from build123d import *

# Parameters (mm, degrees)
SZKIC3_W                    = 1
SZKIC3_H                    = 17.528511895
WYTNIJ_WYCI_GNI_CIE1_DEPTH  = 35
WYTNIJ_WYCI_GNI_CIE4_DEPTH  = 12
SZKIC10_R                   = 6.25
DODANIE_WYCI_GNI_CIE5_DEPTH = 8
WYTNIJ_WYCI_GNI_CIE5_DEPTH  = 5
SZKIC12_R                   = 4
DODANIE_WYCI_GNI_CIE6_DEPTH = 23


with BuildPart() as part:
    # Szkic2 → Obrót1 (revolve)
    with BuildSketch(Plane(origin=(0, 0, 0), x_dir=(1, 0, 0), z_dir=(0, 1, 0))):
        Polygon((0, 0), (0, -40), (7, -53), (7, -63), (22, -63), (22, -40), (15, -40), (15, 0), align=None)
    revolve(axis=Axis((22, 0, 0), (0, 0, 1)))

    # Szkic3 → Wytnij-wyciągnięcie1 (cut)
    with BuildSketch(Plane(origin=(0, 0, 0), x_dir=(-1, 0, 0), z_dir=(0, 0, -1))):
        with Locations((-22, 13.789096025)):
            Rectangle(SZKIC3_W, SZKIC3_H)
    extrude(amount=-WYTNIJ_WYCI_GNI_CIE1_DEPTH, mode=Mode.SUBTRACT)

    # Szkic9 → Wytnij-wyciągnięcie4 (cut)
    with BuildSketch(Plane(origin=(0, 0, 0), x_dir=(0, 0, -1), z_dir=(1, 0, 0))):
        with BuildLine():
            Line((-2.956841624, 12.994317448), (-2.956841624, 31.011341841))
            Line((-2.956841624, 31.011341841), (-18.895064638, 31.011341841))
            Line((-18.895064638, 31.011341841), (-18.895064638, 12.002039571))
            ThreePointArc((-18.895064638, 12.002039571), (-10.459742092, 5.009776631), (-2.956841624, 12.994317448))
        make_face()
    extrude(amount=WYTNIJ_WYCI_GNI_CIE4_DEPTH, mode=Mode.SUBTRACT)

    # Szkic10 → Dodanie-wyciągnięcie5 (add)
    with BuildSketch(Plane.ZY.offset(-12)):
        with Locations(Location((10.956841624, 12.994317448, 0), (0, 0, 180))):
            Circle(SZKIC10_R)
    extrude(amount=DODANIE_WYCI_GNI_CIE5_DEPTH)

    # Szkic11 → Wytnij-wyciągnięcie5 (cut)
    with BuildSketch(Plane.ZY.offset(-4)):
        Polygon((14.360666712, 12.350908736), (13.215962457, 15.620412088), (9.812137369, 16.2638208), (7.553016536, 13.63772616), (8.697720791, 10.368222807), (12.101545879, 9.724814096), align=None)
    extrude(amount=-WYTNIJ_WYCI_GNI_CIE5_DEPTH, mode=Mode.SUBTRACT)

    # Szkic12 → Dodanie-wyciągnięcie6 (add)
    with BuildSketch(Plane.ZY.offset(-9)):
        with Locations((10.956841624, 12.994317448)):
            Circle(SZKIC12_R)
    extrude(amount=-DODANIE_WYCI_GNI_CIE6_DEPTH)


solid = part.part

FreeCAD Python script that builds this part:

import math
import FreeCAD as App
import Part
import Sketcher

doc = App.newDocument("Part")
body = doc.addObject("PartDesign::Body", "Body")

sketch1 = body.newObject("Sketcher::SketchObject", "Sketch")
sketch1.AttachmentSupport = (doc.getObject("XZ_Plane"), [""])
sketch1.MapMode = "FlatFace"
sketch1.addGeometry(Part.LineSegment(App.Vector(0, 0, 0), App.Vector(0, 40, 0)), False)
sketch1.addGeometry(Part.LineSegment(App.Vector(0, 40, 0), App.Vector(7, 53, 0)), False)
sketch1.addGeometry(Part.LineSegment(App.Vector(7, 53, 0), App.Vector(7, 63, 0)), False)
sketch1.addGeometry(Part.LineSegment(App.Vector(7, 63, 0), App.Vector(22, 63, 0)), False)
sketch1.addGeometry(Part.LineSegment(App.Vector(22, 63, 0), App.Vector(22, 40, 0)), False)
sketch1.addGeometry(Part.LineSegment(App.Vector(22, 40, 0), App.Vector(15, 40, 0)), False)
sketch1.addGeometry(Part.LineSegment(App.Vector(15, 40, 0), App.Vector(15, 0, 0)), False)
sketch1.addGeometry(Part.LineSegment(App.Vector(15, 0, 0), App.Vector(0, 0, 0)), False)
sketch1.addGeometry(Part.LineSegment(App.Vector(22, 0, 0), App.Vector(22, 63, 0)), True)
sketch1.addConstraint(Sketcher.Constraint("Coincident", 0, 2, 1, 1))
sketch1.addConstraint(Sketcher.Constraint("Coincident", 1, 2, 2, 1))
sketch1.addConstraint(Sketcher.Constraint("Coincident", 2, 2, 3, 1))
sketch1.addConstraint(Sketcher.Constraint("Coincident", 3, 2, 4, 1))
sketch1.addConstraint(Sketcher.Constraint("Coincident", 4, 2, 5, 1))
sketch1.addConstraint(Sketcher.Constraint("Coincident", 5, 2, 6, 1))
sketch1.addConstraint(Sketcher.Constraint("Coincident", 6, 2, 7, 1))
sketch1.addConstraint(Sketcher.Constraint("Coincident", 7, 2, 0, 1))
sketch1.addConstraint(Sketcher.Constraint("Vertical", 0))
sketch1.addConstraint(Sketcher.Constraint("Vertical", 2))
sketch1.addConstraint(Sketcher.Constraint("Horizontal", 3))
sketch1.addConstraint(Sketcher.Constraint("Vertical", 4))
sketch1.addConstraint(Sketcher.Constraint("Horizontal", 5))
sketch1.addConstraint(Sketcher.Constraint("Vertical", 6))
sketch1.addConstraint(Sketcher.Constraint("Horizontal", 7))
sketch1.addConstraint(Sketcher.Constraint("Vertical", 8))
sketch1.addConstraint(Sketcher.Constraint("Coincident", 7, 2, -1, 1))
sketch1.addConstraint(Sketcher.Constraint("Coincident", 8, 2, 3, 2))
sketch1.addConstraint(Sketcher.Constraint("PointOnObject", 8, 1, -1))
sketch1.addConstraint(Sketcher.Constraint("Horizontal", 0, 2, 4, 2))
sketch1.addConstraint(Sketcher.Constraint("Equal", 3, 7))
sketch1.addConstraint(Sketcher.Constraint("DistanceX", 3, 1, 3, 2, 15.0))
sketch1.addConstraint(Sketcher.Constraint("DistanceX", 5, 2, 5, 1, 7.0))
sketch1.addConstraint(Sketcher.Constraint("DistanceY", 0, 1, 0, 2, 40.0))
sketch1.addConstraint(Sketcher.Constraint("DistanceY", 2, 1, 2, 2, 10.0))
sketch1.addConstraint(Sketcher.Constraint("DistanceY", 4, 2, 4, 1, 23.0))
revolution = body.newObject("PartDesign::Revolution", "Revolution")
revolution.Profile = sketch1
revolution.ReferenceAxis = (sketch1, ["Axis0"])
revolution.Angle = 360

sketch2 = body.newObject("Sketcher::SketchObject", "Sketch001")
sketch2.AttachmentSupport = (doc.getObject("XY_Plane"), [""])
sketch2.MapMode = "FlatFace"
sketch2.addGeometry(Part.LineSegment(App.Vector(22.5, 22.6, 0), App.Vector(22.5, 5, 0)), False)
sketch2.addGeometry(Part.LineSegment(App.Vector(22.5, 5, 0), App.Vector(21.5, 5, 0)), False)
sketch2.addGeometry(Part.LineSegment(App.Vector(21.5, 5, 0), App.Vector(21.5, 22.6, 0)), False)
sketch2.addGeometry(Part.LineSegment(App.Vector(21.5, 22.6, 0), App.Vector(22.5, 22.6, 0)), False)
sketch2.addConstraint(Sketcher.Constraint("Coincident", 0, 2, 1, 1))
sketch2.addConstraint(Sketcher.Constraint("Coincident", 1, 2, 2, 1))
sketch2.addConstraint(Sketcher.Constraint("Coincident", 2, 2, 3, 1))
sketch2.addConstraint(Sketcher.Constraint("Coincident", 3, 2, 0, 1))
sketch2.addConstraint(Sketcher.Constraint("Vertical", 0))
sketch2.addConstraint(Sketcher.Constraint("Horizontal", 1))
sketch2.addConstraint(Sketcher.Constraint("Vertical", 2))
sketch2.addConstraint(Sketcher.Constraint("Horizontal", 3))
sketch2.addConstraint(Sketcher.Constraint("DistanceX", 1, 2, 1, 1, 1.0))
sketch2.addConstraint(Sketcher.Constraint("DistanceX", -1, 1, 0, 2, 22.5))
sketch2.addConstraint(Sketcher.Constraint("DistanceY", 0, 2, 0, 1, 17.528512))
sketch2.addConstraint(Sketcher.Constraint("DistanceY", -1, 1, 0, 2, 5.02484))
pocket1 = body.newObject("PartDesign::Pocket", "Pocket")
pocket1.Profile = sketch2
pocket1.Length = 35
pocket1.Reversed = True

sketch3 = body.newObject("Sketcher::SketchObject", "Sketch002")
sketch3.AttachmentSupport = (doc.getObject("YZ_Plane"), [""])
sketch3.MapMode = "FlatFace"
sketch3.addGeometry(Part.LineSegment(App.Vector(13, 3, 0), App.Vector(31, 3, 0)), False)
sketch3.addGeometry(Part.LineSegment(App.Vector(31, 3, 0), App.Vector(31, 19, 0)), False)
sketch3.addGeometry(Part.LineSegment(App.Vector(31, 19, 0), App.Vector(12, 19, 0)), False)
sketch3.addGeometry(Part.ArcOfCircle(Part.Circle(App.Vector(13, 11, 0), App.Vector(0, 0, 1), 8), math.radians(97), math.radians(270)), False)
sketch3.addConstraint(Sketcher.Constraint("Coincident", 0, 2, 1, 1))
sketch3.addConstraint(Sketcher.Constraint("Coincident", 1, 2, 2, 1))
sketch3.addConstraint(Sketcher.Constraint("Coincident", 2, 2, 3, 1))
sketch3.addConstraint(Sketcher.Constraint("Tangent", 3, 2, 0, 1))
sketch3.addConstraint(Sketcher.Constraint("Horizontal", 0))
sketch3.addConstraint(Sketcher.Constraint("Vertical", 1))
sketch3.addConstraint(Sketcher.Constraint("Horizontal", 2))
sketch3.addConstraint(Sketcher.Constraint("Radius", 3, 8.0))
sketch3.addConstraint(Sketcher.Constraint("DistanceX", 0, 1, 0, 2, 18.017024))
sketch3.addConstraint(Sketcher.Constraint("DistanceX", 2, 2, 2, 1, 19.009302))
sketch3.addConstraint(Sketcher.Constraint("DistanceY", -1, 1, 3, 3, 10.956842))
sketch3.addConstraint(Sketcher.Constraint("DistanceX", -1, 1, 0, 2, 31.011342))
pocket2 = body.newObject("PartDesign::Pocket", "Pocket001")
pocket2.Profile = sketch3
pocket2.Length = 12
pocket2.Reversed = True

sketch4 = body.newObject("Sketcher::SketchObject", "Sketch003")
sketch4.AttachmentSupport = (doc.getObject("YZ_Plane"), [""])
sketch4.MapMode = "FlatFace"
sketch4.AttachmentOffset = App.Placement(App.Vector(0, 0, 12), App.Rotation())
sketch4.addGeometry(Part.Circle(App.Vector(13, 11, 0), App.Vector(0, 0, 1), 6), False)
sketch4.addConstraint(Sketcher.Constraint("Diameter", 0, 12.5))
sketch4.addConstraint(Sketcher.Constraint("DistanceY", -1, 1, 0, 3, 10.956842))
sketch4.addConstraint(Sketcher.Constraint("DistanceX", -1, 1, 0, 3, 12.994317))
pad1 = body.newObject("PartDesign::Pad", "Pad")
pad1.Profile = sketch4
pad1.Length = 8
pad1.Reversed = True

sketch5 = body.newObject("Sketcher::SketchObject", "Sketch004")
sketch5.AttachmentSupport = (doc.getObject("YZ_Plane"), [""])
sketch5.MapMode = "FlatFace"
sketch5.AttachmentOffset = App.Placement(App.Vector(0, 0, 4), App.Rotation())
sketch5.addGeometry(Part.LineSegment(App.Vector(12.4, 14.4, 0), App.Vector(15.6, 13.2, 0)), False)
sketch5.addGeometry(Part.LineSegment(App.Vector(15.6, 13.2, 0), App.Vector(16.3, 9.8, 0)), False)
sketch5.addGeometry(Part.LineSegment(App.Vector(16.3, 9.8, 0), App.Vector(13.6, 7.6, 0)), False)
sketch5.addGeometry(Part.LineSegment(App.Vector(13.6, 7.6, 0), App.Vector(10.4, 8.7, 0)), False)
sketch5.addGeometry(Part.LineSegment(App.Vector(10.4, 8.7, 0), App.Vector(9.7, 12.1, 0)), False)
sketch5.addGeometry(Part.LineSegment(App.Vector(9.7, 12.1, 0), App.Vector(12.4, 14.4, 0)), False)
sketch5.addConstraint(Sketcher.Constraint("Coincident", 0, 2, 1, 1))
sketch5.addConstraint(Sketcher.Constraint("Coincident", 1, 2, 2, 1))
sketch5.addConstraint(Sketcher.Constraint("Coincident", 2, 2, 3, 1))
sketch5.addConstraint(Sketcher.Constraint("Coincident", 3, 2, 4, 1))
sketch5.addConstraint(Sketcher.Constraint("Coincident", 4, 2, 5, 1))
sketch5.addConstraint(Sketcher.Constraint("Coincident", 5, 2, 0, 1))
sketch5.addConstraint(Sketcher.Constraint("Parallel", 0, 3))
sketch5.addConstraint(Sketcher.Constraint("Parallel", 1, 4))
sketch5.addConstraint(Sketcher.Constraint("Parallel", 2, 5))
sketch5.addConstraint(Sketcher.Constraint("Equal", 0, 1))
sketch5.addConstraint(Sketcher.Constraint("Equal", 1, 2))
sketch5.addConstraint(Sketcher.Constraint("Equal", 2, 3))
sketch5.addConstraint(Sketcher.Constraint("Distance", 0, 3.464102))
sketch5.addConstraint(Sketcher.Constraint("DistanceX", -1, 1, 1, 2, 16.263821))
sketch5.addConstraint(Sketcher.Constraint("DistanceY", -1, 1, 3, 2, 8.697721))
sketch5.addConstraint(Sketcher.Constraint("DistanceX", -1, 1, 5, 2, 12.350909))
sketch5.addConstraint(Sketcher.Constraint("DistanceX", 0, 2, 1, 2, 0.643409))
sketch5.addConstraint(Sketcher.Constraint("DistanceY", 2, 2, 1, 2, 2.259121))
pocket3 = body.newObject("PartDesign::Pocket", "Pocket002")
pocket3.Profile = sketch5
pocket3.Length = 5
pocket3.Reversed = True

sketch6 = body.newObject("Sketcher::SketchObject", "Sketch005")
sketch6.AttachmentSupport = (doc.getObject("YZ_Plane"), [""])
sketch6.MapMode = "FlatFace"
sketch6.AttachmentOffset = App.Placement(App.Vector(0, 0, 9), App.Rotation())
sketch6.addGeometry(Part.Circle(App.Vector(13, 11, 0), App.Vector(0, 0, 1), 4), False)
sketch6.addConstraint(Sketcher.Constraint("Diameter", 0, 8.0))
sketch6.addConstraint(Sketcher.Constraint("DistanceY", -1, 1, 0, 3, 10.956842))
sketch6.addConstraint(Sketcher.Constraint("DistanceX", -1, 1, 0, 3, 12.994317))
pad2 = body.newObject("PartDesign::Pad", "Pad001")
pad2.Profile = sketch6
pad2.Length = 23

doc.recompute()
